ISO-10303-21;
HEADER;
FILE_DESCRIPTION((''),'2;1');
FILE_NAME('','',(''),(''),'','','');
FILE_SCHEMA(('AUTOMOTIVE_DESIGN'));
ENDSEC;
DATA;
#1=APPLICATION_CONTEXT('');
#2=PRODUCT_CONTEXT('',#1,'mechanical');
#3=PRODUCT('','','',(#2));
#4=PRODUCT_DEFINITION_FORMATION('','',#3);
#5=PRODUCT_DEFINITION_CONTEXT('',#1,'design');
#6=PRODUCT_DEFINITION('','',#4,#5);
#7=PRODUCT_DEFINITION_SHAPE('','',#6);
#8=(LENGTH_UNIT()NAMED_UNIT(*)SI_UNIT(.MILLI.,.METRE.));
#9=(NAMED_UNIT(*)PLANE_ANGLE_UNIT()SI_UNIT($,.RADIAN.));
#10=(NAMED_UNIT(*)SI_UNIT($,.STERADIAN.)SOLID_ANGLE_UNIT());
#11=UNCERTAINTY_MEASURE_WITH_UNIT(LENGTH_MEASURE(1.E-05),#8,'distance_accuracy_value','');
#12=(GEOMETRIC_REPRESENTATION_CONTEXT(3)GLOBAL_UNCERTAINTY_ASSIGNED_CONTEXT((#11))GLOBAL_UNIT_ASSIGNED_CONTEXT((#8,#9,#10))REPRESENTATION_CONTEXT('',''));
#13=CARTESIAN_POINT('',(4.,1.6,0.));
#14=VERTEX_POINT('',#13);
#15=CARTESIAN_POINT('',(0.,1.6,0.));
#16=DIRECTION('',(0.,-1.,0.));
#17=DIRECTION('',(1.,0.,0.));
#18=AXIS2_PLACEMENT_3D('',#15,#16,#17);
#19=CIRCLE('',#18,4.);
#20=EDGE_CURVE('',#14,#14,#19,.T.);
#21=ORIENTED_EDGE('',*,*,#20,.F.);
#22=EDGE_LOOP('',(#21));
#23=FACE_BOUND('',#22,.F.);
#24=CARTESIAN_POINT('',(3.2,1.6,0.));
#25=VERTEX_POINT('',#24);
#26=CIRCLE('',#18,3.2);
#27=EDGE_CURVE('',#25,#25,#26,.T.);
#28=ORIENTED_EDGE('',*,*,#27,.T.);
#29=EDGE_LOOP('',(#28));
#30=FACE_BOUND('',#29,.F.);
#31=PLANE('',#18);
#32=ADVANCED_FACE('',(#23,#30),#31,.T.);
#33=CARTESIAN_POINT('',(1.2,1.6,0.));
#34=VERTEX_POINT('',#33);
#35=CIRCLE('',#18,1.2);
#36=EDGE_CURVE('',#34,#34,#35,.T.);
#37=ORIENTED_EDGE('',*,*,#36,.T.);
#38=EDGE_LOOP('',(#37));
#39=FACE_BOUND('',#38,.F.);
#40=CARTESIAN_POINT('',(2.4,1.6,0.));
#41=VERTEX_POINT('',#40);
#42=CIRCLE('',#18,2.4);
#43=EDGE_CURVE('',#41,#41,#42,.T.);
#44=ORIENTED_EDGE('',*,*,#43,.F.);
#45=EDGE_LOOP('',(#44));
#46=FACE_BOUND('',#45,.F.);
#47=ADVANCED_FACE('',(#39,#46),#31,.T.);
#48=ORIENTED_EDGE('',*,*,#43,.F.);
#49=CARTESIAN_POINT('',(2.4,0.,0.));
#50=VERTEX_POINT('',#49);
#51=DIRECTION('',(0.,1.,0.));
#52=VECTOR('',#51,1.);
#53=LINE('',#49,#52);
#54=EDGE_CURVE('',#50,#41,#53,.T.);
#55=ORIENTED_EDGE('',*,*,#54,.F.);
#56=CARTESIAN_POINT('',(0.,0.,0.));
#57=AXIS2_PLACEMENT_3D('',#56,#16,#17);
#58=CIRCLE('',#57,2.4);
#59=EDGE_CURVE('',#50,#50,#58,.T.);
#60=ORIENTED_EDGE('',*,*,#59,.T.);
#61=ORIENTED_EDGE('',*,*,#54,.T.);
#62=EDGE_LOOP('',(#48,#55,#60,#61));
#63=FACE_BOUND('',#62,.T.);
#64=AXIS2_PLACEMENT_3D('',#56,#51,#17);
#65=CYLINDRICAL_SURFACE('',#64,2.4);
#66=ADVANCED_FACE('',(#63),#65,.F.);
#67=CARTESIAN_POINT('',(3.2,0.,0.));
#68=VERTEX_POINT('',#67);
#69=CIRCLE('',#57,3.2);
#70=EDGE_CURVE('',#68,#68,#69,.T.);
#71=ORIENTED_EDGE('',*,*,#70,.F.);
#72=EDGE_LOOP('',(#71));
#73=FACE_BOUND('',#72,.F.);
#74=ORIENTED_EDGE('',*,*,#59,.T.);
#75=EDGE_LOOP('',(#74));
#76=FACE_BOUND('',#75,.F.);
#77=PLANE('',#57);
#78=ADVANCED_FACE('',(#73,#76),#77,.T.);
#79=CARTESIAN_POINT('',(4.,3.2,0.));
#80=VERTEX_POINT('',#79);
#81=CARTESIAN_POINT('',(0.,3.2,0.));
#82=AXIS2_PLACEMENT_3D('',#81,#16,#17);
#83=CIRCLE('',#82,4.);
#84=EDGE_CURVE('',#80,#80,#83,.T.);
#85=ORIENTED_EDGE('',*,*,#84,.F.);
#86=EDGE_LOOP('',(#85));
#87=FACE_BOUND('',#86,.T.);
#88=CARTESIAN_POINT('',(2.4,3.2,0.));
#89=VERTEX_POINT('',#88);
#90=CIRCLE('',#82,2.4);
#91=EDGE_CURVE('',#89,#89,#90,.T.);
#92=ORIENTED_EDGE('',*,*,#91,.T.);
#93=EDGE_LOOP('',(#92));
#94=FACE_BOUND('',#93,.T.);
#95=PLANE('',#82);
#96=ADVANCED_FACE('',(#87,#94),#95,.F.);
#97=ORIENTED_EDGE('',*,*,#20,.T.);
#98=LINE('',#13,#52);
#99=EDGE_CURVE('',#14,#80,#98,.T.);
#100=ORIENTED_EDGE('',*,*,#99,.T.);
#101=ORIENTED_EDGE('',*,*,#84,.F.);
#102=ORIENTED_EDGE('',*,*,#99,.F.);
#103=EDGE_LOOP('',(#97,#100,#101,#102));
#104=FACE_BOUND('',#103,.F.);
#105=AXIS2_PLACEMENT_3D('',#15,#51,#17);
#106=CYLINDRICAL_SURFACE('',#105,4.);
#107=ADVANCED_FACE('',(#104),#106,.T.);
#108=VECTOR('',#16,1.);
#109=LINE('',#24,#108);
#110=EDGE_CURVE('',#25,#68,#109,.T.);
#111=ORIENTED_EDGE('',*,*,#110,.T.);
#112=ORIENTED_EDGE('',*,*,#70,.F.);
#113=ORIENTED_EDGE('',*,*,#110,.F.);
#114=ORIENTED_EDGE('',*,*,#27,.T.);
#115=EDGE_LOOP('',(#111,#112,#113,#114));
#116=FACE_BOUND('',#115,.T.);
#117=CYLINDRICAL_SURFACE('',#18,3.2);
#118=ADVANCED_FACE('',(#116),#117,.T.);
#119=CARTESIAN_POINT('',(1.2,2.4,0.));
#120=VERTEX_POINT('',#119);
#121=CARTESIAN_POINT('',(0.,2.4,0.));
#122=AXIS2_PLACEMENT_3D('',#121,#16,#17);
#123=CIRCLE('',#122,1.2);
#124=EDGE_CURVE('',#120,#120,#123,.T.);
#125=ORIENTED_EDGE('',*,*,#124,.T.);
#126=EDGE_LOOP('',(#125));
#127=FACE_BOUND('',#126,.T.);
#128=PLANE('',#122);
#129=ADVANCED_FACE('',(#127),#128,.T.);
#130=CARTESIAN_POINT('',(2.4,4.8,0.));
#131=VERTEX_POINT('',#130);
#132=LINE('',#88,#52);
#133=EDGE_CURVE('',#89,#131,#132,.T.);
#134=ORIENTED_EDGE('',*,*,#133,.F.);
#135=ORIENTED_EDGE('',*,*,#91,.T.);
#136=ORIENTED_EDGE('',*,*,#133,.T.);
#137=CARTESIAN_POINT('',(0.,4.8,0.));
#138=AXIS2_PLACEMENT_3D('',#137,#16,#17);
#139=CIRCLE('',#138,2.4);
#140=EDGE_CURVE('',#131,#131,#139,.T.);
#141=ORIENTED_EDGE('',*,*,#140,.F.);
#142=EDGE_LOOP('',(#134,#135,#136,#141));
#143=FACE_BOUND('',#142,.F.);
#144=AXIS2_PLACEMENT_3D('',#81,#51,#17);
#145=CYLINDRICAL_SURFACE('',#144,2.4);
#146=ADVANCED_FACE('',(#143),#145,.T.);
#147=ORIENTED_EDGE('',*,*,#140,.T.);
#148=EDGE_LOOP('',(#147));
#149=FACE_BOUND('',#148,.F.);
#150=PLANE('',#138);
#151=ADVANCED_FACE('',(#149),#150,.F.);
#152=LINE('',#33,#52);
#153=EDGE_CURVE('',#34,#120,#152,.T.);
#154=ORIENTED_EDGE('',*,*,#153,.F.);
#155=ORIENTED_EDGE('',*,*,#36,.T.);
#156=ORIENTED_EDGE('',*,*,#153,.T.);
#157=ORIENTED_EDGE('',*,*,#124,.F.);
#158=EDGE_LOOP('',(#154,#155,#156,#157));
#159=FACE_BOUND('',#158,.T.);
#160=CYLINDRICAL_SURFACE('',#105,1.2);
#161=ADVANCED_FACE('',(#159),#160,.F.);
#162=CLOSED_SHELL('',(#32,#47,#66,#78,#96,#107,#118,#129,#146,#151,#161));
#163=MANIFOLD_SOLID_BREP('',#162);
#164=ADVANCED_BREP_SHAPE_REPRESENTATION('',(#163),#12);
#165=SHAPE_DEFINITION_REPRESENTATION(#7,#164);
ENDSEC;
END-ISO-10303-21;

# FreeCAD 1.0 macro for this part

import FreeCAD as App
import Part
import Sketcher
from FreeCAD import Vector

doc = App.newDocument("Part")
body = doc.addObject("PartDesign::Body", "Body")

sketch1 = body.newObject("Sketcher::SketchObject", "Sketch")
sketch1.AttachmentSupport = (doc.getObject("XY_Plane"), [""])
sketch1.MapMode = "FlatFace"
sketch1.addGeometry(Part.LineSegment(Vector(2.4, 1.6, 0), Vector(2.4, 0, 0)), False)
sketch1.addGeometry(Part.LineSegment(Vector(2.4, 0, 0), Vector(3.2, 0, 0)), False)
sketch1.addGeometry(Part.LineSegment(Vector(3.2, 0, 0), Vector(3.2, 1.6, 0)), False)
sketch1.addGeometry(Part.LineSegment(Vector(3.2, 1.6, 0), Vector(4, 1.6, 0)), False)
sketch1.addGeometry(Part.LineSegment(Vector(4, 1.6, 0), Vector(4, 3.2, 0)), False)
sketch1.addGeometry(Part.LineSegment(Vector(4, 3.2, 0), Vector(2.4, 3.2, 0)), False)
sketch1.addGeometry(Part.LineSegment(Vector(2.4, 3.2, 0), Vector(2.4, 4.8, 0)), False)
sketch1.addGeometry(Part.LineSegment(Vector(2.4, 4.8, 0), Vector(0, 4.8, 0)), False)
sketch1.addGeometry(Part.LineSegment(Vector(0, 4.8, 0), Vector(0, 2.4, 0)), False)
sketch1.addGeometry(Part.LineSegment(Vector(0, 2.4, 0), Vector(1.2, 2.4, 0)), False)
sketch1.addGeometry(Part.LineSegment(Vector(1.2, 2.4, 0), Vector(1.2, 1.6, 0)), False)
sketch1.addGeometry(Part.LineSegment(Vector(1.2, 1.6, 0), Vector(2.4, 1.6, 0)), False)
sketch1.addConstraint(Sketcher.Constraint("Coincident", 0, 2, 1, 1))
sketch1.addConstraint(Sketcher.Constraint("Coincident", 1, 2, 2, 1))
sketch1.addConstraint(Sketcher.Constraint("Coincident", 2, 2, 3, 1))
sketch1.addConstraint(Sketcher.Constraint("Coincident", 3, 2, 4, 1))
sketch1.addConstraint(Sketcher.Constraint("Coincident", 4, 2, 5, 1))
sketch1.addConstraint(Sketcher.Constraint("Coincident", 5, 2, 6, 1))
sketch1.addConstraint(Sketcher.Constraint("Coincident", 6, 2, 7, 1))
sketch1.addConstraint(Sketcher.Constraint("Coincident", 7, 2, 8, 1))
sketch1.addConstraint(Sketcher.Constraint("Coincident", 8, 2, 9, 1))
sketch1.addConstraint(Sketcher.Constraint("Coincident", 9, 2, 10, 1))
sketch1.addConstraint(Sketcher.Constraint("Coincident", 10, 2, 11, 1))
sketch1.addConstraint(Sketcher.Constraint("Coincident", 11, 2, 0, 1))
sketch1.addConstraint(Sketcher.Constraint("Vertical", 0))
sketch1.addConstraint(Sketcher.Constraint("Horizontal", 1))
sketch1.addConstraint(Sketcher.Constraint("Vertical", 2))
sketch1.addConstraint(Sketcher.Constraint("Horizontal", 3))
sketch1.addConstraint(Sketcher.Constraint("Vertical", 4))
sketch1.addConstraint(Sketcher.Constraint("Horizontal", 5))
sketch1.addConstraint(Sketcher.Constraint("Vertical", 6))
sketch1.addConstraint(Sketcher.Constraint("Horizontal", 7))
sketch1.addConstraint(Sketcher.Constraint("Vertical", 8))
sketch1.addConstraint(Sketcher.Constraint("Horizontal", 9))
sketch1.addConstraint(Sketcher.Constraint("Vertical", 10))
sketch1.addConstraint(Sketcher.Constraint("Horizontal", 11))
sketch1.addConstraint(Sketcher.Constraint("PointOnObject", 0, 2, -1))
sketch1.addConstraint(Sketcher.Constraint("PointOnObject", 7, 2, -2))
sketch1.addConstraint(Sketcher.Constraint("Horizontal", 3, 2, 10, 2))
sketch1.addConstraint(Sketcher.Constraint("Vertical", 0, 2, 5, 2))
sketch1.addConstraint(Sketcher.Constraint("Equal", 1, 3))
sketch1.addConstraint(Sketcher.Constraint("Equal", 9, 11))
sketch1.addConstraint(Sketcher.Constraint("Equal", 5, 0))
sketch1.addConstraint(Sketcher.Constraint("Equal", 2, 4))
sketch1.addConstraint(Sketcher.Constraint("Equal", 4, 6))
sketch1.addConstraint(Sketcher.Constraint("Equal", 7, 8))
sketch1.addConstraint(Sketcher.Constraint("Equal", 3, 10))
sketch1.addConstraint(Sketcher.Constraint("DistanceX", 1, 1, 1, 2, 0.8))
revolution = body.newObject("PartDesign::Revolution", "Revolution")
revolution.Profile = sketch1
revolution.ReferenceAxis = (sketch1, ["V_Axis"])
revolution.Angle = 360

doc.recompute()
